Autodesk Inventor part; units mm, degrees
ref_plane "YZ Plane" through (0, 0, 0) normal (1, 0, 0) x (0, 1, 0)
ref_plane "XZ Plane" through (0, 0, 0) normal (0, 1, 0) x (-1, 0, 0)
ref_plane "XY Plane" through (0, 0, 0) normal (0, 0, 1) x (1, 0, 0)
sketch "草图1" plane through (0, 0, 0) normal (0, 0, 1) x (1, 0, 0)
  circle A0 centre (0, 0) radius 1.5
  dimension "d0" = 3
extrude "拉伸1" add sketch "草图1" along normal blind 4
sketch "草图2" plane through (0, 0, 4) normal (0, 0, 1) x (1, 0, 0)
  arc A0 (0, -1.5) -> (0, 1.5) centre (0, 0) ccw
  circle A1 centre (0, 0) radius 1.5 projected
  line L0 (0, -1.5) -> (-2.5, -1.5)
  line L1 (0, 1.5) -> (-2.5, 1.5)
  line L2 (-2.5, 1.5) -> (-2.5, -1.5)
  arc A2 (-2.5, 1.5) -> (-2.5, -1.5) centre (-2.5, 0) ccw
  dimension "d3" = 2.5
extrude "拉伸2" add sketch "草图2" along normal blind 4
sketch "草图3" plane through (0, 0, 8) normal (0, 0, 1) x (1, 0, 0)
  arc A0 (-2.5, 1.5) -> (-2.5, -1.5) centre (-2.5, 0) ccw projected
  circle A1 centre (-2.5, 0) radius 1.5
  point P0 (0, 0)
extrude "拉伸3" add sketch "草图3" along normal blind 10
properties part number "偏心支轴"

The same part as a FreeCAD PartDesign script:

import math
import FreeCAD as App
import Part
import Sketcher

doc = App.newDocument("Part")
body = doc.addObject("PartDesign::Body", "Body")

# Sketch on XY plane
sketch1 = doc.addObject("Sketcher::SketchObject", "Sketch")
body.addObject(sketch1)
sketch1.AttachmentSupport = (doc.XY_Plane, [""])
sketch1.MapMode = "FlatFace"
sketch1.addGeometry(Part.Circle(App.Vector(0, 0, 0), App.Vector(0, 0, 1), 1.5), False)
sketch1.addConstraint([
    Sketcher.Constraint("Coincident", 0, 3, -1, 1),
    Sketcher.Constraint("Diameter", 0, 3.0),
])
pad1 = doc.addObject("PartDesign::Pad", "Pad")
body.addObject(pad1)
pad1.Profile = sketch1
pad1.Length = 4

# Sketch on XY plane
sketch2 = doc.addObject("Sketcher::SketchObject", "Sketch001")
body.addObject(sketch2)
sketch2.AttachmentSupport = (doc.XY_Plane, [""])
sketch2.MapMode = "FlatFace"
sketch2.AttachmentOffset = App.Placement(App.Vector(0, 0, 4), App.Rotation())
sketch2.addGeometry([
    Part.LineSegment(App.Vector(0, 1.5, 0), App.Vector(-2.5, 1.5, 0)),
    Part.ArcOfCircle(Part.Circle(App.Vector(-2.5, 0, 0), App.Vector(0, 0, 1), 1.5), math.radians(90), math.radians(270)),
    Part.LineSegment(App.Vector(-2.5, -1.5, 0), App.Vector(0, -1.5, 0)),
    Part.ArcOfCircle(Part.Circle(App.Vector(0, 0, 0), App.Vector(0, 0, 1), 1.5), math.radians(-90), math.radians(90)),
], False)
sketch2.addConstraint([
    Sketcher.Constraint("Tangent", 0, 2, 1, 1),
    Sketcher.Constraint("Tangent", 1, 2, 2, 1),
    Sketcher.Constraint("Tangent", 2, 2, 3, 1),
    Sketcher.Constraint("Tangent", 3, 2, 0, 1),
    Sketcher.Constraint("Horizontal", 0),
    Sketcher.Constraint("Horizontal", 2),
    Sketcher.Constraint("Coincident", 3, 3, -1, 1),
    Sketcher.Constraint("DistanceX", 0, 2, 0, 1, 2.5),
    Sketcher.Constraint("Radius", 1, 1.5),
])
pad2 = doc.addObject("PartDesign::Pad", "Pad001")
body.addObject(pad2)
pad2.Profile = sketch2
pad2.Length = 4

# Sketch on XY plane
sketch3 = doc.addObject("Sketcher::SketchObject", "Sketch002")
body.addObject(sketch3)
sketch3.AttachmentSupport = (doc.XY_Plane, [""])
sketch3.MapMode = "FlatFace"
sketch3.AttachmentOffset = App.Placement(App.Vector(0, 0, 8), App.Rotation())
sketch3.addGeometry(Part.Circle(App.Vector(-2.5, 0, 0), App.Vector(0, 0, 1), 1.5), False)
sketch3.addConstraint([
    Sketcher.Constraint("PointOnObject", 0, 3, -1),
    Sketcher.Constraint("Diameter", 0, 3.0),
    Sketcher.Constraint("DistanceX", 0, 3, -1, 1, 2.5),
])
pad3 = doc.addObject("PartDesign::Pad", "Pad002")
body.addObject(pad3)
pad3.Profile = sketch3
pad3.Length = 10

doc.recompute()
